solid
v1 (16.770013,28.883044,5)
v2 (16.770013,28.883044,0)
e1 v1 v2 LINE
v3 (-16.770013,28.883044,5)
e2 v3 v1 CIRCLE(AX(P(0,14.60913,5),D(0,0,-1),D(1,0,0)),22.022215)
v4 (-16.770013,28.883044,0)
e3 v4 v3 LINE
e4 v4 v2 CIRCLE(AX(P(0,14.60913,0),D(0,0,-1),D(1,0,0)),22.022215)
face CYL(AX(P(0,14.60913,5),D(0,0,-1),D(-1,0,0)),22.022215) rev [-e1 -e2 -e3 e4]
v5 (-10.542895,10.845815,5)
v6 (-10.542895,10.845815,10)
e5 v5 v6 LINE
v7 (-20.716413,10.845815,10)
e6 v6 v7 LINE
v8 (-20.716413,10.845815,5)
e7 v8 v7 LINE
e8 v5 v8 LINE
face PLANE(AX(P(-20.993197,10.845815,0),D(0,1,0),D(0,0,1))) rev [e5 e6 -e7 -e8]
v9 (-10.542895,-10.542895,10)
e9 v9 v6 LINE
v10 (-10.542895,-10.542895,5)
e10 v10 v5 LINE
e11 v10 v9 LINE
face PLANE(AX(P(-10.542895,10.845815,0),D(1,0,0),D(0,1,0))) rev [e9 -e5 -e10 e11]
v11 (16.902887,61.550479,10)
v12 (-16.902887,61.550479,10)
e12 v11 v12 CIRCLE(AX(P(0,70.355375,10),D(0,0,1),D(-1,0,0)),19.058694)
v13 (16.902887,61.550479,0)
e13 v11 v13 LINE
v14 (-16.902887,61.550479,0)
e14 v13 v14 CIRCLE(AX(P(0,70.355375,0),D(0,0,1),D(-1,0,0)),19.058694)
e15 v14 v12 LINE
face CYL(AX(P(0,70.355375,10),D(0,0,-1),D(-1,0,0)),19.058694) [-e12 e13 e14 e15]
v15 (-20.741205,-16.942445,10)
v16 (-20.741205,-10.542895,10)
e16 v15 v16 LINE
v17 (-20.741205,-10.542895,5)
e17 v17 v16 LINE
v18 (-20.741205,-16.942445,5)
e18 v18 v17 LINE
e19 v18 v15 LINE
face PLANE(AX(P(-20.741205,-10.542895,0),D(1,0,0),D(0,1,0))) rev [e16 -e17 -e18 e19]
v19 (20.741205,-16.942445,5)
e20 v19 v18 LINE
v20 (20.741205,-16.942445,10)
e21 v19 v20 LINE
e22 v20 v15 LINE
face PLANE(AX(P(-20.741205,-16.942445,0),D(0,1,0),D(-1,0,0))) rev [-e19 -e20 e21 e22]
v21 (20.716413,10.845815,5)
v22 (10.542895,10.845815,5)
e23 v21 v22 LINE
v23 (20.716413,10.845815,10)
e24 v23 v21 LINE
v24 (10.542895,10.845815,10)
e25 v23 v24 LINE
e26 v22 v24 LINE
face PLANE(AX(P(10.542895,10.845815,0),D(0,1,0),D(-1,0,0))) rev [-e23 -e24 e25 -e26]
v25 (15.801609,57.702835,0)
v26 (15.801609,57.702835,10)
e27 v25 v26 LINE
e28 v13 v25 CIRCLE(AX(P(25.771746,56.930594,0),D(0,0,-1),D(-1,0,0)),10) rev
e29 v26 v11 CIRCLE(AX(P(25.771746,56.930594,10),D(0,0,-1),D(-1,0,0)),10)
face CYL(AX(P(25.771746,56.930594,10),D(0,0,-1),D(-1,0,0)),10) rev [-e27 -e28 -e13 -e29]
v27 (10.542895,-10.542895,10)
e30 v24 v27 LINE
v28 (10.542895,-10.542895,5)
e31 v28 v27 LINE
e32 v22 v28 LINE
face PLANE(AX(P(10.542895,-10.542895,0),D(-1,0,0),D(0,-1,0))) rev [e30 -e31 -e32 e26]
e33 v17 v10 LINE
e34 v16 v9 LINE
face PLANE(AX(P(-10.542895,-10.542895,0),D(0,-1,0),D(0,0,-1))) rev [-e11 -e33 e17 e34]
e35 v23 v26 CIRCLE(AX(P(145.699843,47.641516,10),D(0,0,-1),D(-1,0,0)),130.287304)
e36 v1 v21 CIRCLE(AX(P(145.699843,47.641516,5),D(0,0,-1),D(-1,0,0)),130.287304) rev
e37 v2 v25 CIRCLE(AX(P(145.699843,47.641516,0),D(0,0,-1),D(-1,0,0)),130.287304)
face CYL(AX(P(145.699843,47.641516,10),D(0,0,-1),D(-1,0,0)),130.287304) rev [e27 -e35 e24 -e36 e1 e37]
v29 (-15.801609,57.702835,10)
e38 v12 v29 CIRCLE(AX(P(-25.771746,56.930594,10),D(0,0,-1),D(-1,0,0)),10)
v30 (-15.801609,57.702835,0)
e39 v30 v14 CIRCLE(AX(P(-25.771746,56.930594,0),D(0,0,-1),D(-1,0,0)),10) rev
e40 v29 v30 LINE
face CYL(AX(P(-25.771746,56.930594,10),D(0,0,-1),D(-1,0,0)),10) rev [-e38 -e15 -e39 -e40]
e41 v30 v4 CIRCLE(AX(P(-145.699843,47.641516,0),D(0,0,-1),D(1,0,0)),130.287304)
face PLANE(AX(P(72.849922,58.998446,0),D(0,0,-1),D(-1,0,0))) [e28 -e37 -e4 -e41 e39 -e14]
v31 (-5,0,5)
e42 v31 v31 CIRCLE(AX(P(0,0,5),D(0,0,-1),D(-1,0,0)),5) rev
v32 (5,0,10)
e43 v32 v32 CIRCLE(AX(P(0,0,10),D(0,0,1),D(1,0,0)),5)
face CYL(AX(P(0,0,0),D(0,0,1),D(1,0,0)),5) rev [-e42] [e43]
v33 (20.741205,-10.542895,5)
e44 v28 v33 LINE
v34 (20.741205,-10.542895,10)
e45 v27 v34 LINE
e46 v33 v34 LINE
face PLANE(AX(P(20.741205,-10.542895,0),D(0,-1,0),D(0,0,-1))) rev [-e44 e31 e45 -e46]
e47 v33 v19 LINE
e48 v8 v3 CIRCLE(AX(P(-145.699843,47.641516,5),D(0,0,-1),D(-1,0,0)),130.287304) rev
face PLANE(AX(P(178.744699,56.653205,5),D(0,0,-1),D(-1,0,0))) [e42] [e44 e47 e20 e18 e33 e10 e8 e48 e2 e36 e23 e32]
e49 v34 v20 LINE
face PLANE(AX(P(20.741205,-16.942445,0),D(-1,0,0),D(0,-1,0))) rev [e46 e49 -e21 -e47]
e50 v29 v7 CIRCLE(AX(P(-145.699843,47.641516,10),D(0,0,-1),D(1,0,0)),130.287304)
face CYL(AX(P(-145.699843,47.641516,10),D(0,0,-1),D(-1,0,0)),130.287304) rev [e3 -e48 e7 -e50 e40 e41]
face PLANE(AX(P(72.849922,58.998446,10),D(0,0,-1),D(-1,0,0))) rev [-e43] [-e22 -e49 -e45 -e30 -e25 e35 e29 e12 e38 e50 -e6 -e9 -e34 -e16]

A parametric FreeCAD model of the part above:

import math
import FreeCAD as App
import Part
import Sketcher
from FreeCAD import Vector
Q = App.Units.Quantity


def edges_at(feature, points):
    """Names of the edges that pass closest to the given points."""
    edges = feature.Shape.Edges
    near = lambda p: min(range(len(edges)), key=lambda i: edges[i].distToShape(Part.Vertex(*p))[0])
    return sorted({f"Edge{near(p) + 1}" for p in points})

doc = App.newDocument("Part")
body = doc.addObject("PartDesign::Body", "Body")

sketch1 = body.newObject("Sketcher::SketchObject", "Sketch")
sketch1.AttachmentSupport = (doc.getObject("XY_Plane"), [""])
sketch1.MapMode = "FlatFace"
sketch1.addGeometry([
    Part.ArcOfCircle(Part.Circle(Vector(-145.699843, 47.641516, 0), Vector(0, 0, 1), 130.287304), math.radians(-47.365241), math.radians(5.44301)),
    Part.ArcOfCircle(Part.Circle(Vector(0, 0, 0), Vector(0, 0, 1), 75), math.radians(-140), math.radians(-40)),
    Part.ArcOfCircle(Part.Circle(Vector(145.699843, 47.641516, 0), Vector(0, 0, 1), 130.287304), math.radians(174.55699), math.radians(227.365241)),
    Part.ArcOfCircle(Part.Circle(Vector(0, 70.355375, 0), Vector(0, 0, 1), 19.058694), math.radians(-32.911387), math.radians(212.911387)),
], False)
sketch1.addConstraint([
    Sketcher.Constraint("Coincident", 0, 1, 1, 1),
    Sketcher.Constraint("Coincident", 1, 2, 2, 2),
    Sketcher.Constraint("Coincident", 2, 1, 3, 1),
    Sketcher.Constraint("Coincident", 3, 2, 0, 2),
    Sketcher.Constraint("Coincident", 1, 3, -1, 1),
    Sketcher.Constraint("Equal", 0, 2),
    Sketcher.Constraint("Symmetric", 0, 3, 2, 3, -2),
    Sketcher.Constraint("PointOnObject", 3, 3, -2),
    Sketcher.Constraint("Radius", 1, Q("75 mm")),
    Sketcher.Constraint("DistanceX", -1, 1, 2, 1, Q("16 mm")),
    Sketcher.Constraint("DistanceY", -1, 1, 2, 1, Q("60 mm")),
    Sketcher.Constraint("Radius", 0, Q("130.287304 mm")),
    Sketcher.Constraint("Radius", 3, Q("19.058694 mm")),
    Sketcher.Constraint("DistanceY", 0, 1, -1, 1, Q("48.209071 mm")),
])
pad1 = body.newObject("PartDesign::Pad", "Pad")
pad1.Profile = sketch1
pad1.Length = 10

sketch2 = body.newObject("Sketcher::SketchObject", "Sketch001")
sketch2.AttachmentSupport = (doc.getObject("XY_Plane"), [""])
sketch2.MapMode = "FlatFace"
sketch2.AttachmentOffset = App.Placement(Vector(0, 0, 10), App.Rotation())
sketch2.addGeometry(Part.Circle(Vector(0, 0, 0), Vector(0, 0, 1), 5), False)
sketch2.addConstraint([
    Sketcher.Constraint("Coincident", 0, 3, -1, 1),
    Sketcher.Constraint("Diameter", 0, Q("10 mm")),
])
pocket1 = body.newObject("PartDesign::Pocket", "Pocket")
pocket1.Profile = sketch2
pocket1.Type = "ThroughAll"

sketch3 = body.newObject("Sketcher::SketchObject", "Sketch002")
sketch3.AttachmentSupport = (doc.getObject("XY_Plane"), [""])
sketch3.MapMode = "FlatFace"
sketch3.AttachmentOffset = App.Placement(Vector(0, 0, 10), App.Rotation())
sketch3.addGeometry([
    Part.LineSegment(Vector(-10.542895, 10.845815, 0), Vector(-20.993197, 10.845815, 0)),
    Part.ArcOfCircle(Part.Circle(Vector(-148.449569, 48.754044, 0), Vector(0, 0, 1), 132.974285), math.radians(-46.818277), math.radians(-16.563595)),
    Part.ArcOfCircle(Part.Circle(Vector(0, 0, 0), Vector(0, 0, 1), 75), math.radians(-140), math.radians(-40)),
    Part.ArcOfCircle(Part.Circle(Vector(209.980061, 86.742605, 0), Vector(0, 0, 1), 203.657451), math.radians(-158.119693), math.radians(-138.498435)),
    Part.LineSegment(Vector(20.993197, 10.845815, 0), Vector(10.542895, 10.845815, 0)),
    Part.LineSegment(Vector(10.542895, 10.845815, 0), Vector(10.542895, -10.542895, 0)),
    Part.LineSegment(Vector(10.542895, -10.542895, 0), Vector(20.741205, -10.542895, 0)),
    Part.LineSegment(Vector(20.741205, -10.542895, 0), Vector(20.741205, -16.942445, 0)),
    Part.LineSegment(Vector(20.741205, -16.942445, 0), Vector(-20.741205, -16.942445, 0)),
    Part.LineSegment(Vector(-20.741205, -16.942445, 0), Vector(-20.741205, -10.542895, 0)),
    Part.LineSegment(Vector(-20.741205, -10.542895, 0), Vector(-10.542895, -10.542895, 0)),
    Part.LineSegment(Vector(-10.542895, -10.542895, 0), Vector(-10.542895, 10.845815, 0)),
], False)
sketch3.addConstraint([
    Sketcher.Constraint("Coincident", 0, 2, 1, 2),
    Sketcher.Constraint("Coincident", 1, 1, 2, 1),
    Sketcher.Constraint("Coincident", 2, 2, 3, 2),
    Sketcher.Constraint("Coincident", 3, 1, 4, 1),
    Sketcher.Constraint("Coincident", 4, 2, 5, 1),
    Sketcher.Constraint("Coincident", 5, 2, 6, 1),
    Sketcher.Constraint("Coincident", 6, 2, 7, 1),
    Sketcher.Constraint("Coincident", 7, 2, 8, 1),
    Sketcher.Constraint("Coincident", 8, 2, 9, 1),
    Sketcher.Constraint("Coincident", 9, 2, 10, 1),
    Sketcher.Constraint("Coincident", 10, 2, 11, 1),
    Sketcher.Constraint("Coincident", 11, 2, 0, 1),
    Sketcher.Constraint("Horizontal", 0),
    Sketcher.Constraint("Horizontal", 4),
    Sketcher.Constraint("Vertical", 5),
    Sketcher.Constraint("Horizontal", 6),
    Sketcher.Constraint("Vertical", 7),
    Sketcher.Constraint("Horizontal", 8),
    Sketcher.Constraint("Vertical", 9),
    Sketcher.Constraint("Horizontal", 10),
    Sketcher.Constraint("Vertical", 11),
    Sketcher.Constraint("Coincident", 2, 3, -1, 1),
    Sketcher.Constraint("Symmetric", 0, 2, 3, 1, -2),
    Sketcher.Constraint("Symmetric", 6, 2, 9, 2, -2),
    Sketcher.Constraint("Horizontal", 1, 1, 2, 2),
    Sketcher.Constraint("Equal", 0, 4),
    Sketcher.Constraint("Radius", 2, Q("75 mm")),
    Sketcher.Constraint("Radius", 3, Q("203.657451 mm")),
    Sketcher.Constraint("Radius", 1, Q("132.974285 mm")),
    Sketcher.Constraint("DistanceX", 6, 1, 6, 2, Q("10.19831 mm")),
    Sketcher.Constraint("DistanceX", 8, 2, 8, 1, Q("41.48241 mm")),
    Sketcher.Constraint("DistanceY", 5, 2, 5, 1, Q("21.38871 mm")),
    Sketcher.Constraint("DistanceY", 7, 2, 7, 1, Q("6.39955 mm")),
    Sketcher.Constraint("DistanceX", 1, 3, 2, 2, Q("205.902902 mm")),
    Sketcher.Constraint("DistanceX", 0, 2, 0, 1, Q("10.450302 mm")),
    Sketcher.Constraint("DistanceX", 1, 3, -1, 1, Q("148.449569 mm")),
])
pocket2 = body.newObject("PartDesign::Pocket", "Pocket001")
pocket2.Profile = sketch3
pocket2.Type = "ThroughAll"

sketch4 = body.newObject("Sketcher::SketchObject", "Sketch003")
sketch4.AttachmentSupport = (doc.getObject("XY_Plane"), [""])
sketch4.MapMode = "FlatFace"
sketch4.addGeometry([
    Part.LineSegment(Vector(-10.542895, 10.845815, 0), Vector(-20.993197, 10.845815, 0)),
    Part.ArcOfCircle(Part.Circle(Vector(-154.894669, 51.15523, 0), Vector(0, 0, 1), 139.837238), math.radians(-16.753784), math.radians(-9.208637)),
    Part.ArcOfCircle(Part.Circle(Vector(0, 14.60913, 0), Vector(0, 0, 1), 22.022215), math.radians(40.041929), math.radians(139.958071)),
    Part.ArcOfCircle(Part.Circle(Vector(178.7447, 56.653205, 0), Vector(0, 0, 1), 164.267628), math.radians(-170.229655), math.radians(-163.807924)),
    Part.LineSegment(Vector(20.993197, 10.845815, 0), Vector(10.542895, 10.845815, 0)),
    Part.LineSegment(Vector(10.542895, 10.845815, 0), Vector(10.542895, -10.542895, 0)),
    Part.LineSegment(Vector(10.542895, -10.542895, 0), Vector(20.741205, -10.542895, 0)),
    Part.LineSegment(Vector(20.741205, -10.542895, 0), Vector(20.741205, -16.942445, 0)),
    Part.LineSegment(Vector(20.741205, -16.942445, 0), Vector(-20.741205, -16.942445, 0)),
    Part.LineSegment(Vector(-20.741205, -16.942445, 0), Vector(-20.741205, -10.542895, 0)),
    Part.LineSegment(Vector(-20.741205, -10.542895, 0), Vector(-10.542895, -10.542895, 0)),
    Part.LineSegment(Vector(-10.542895, -10.542895, 0), Vector(-10.542895, 10.845815, 0)),
], False)
sketch4.addConstraint([
    Sketcher.Constraint("Coincident", 0, 2, 1, 1),
    Sketcher.Constraint("Coincident", 1, 2, 2, 2),
    Sketcher.Constraint("Coincident", 2, 1, 3, 1),
    Sketcher.Constraint("Coincident", 3, 2, 4, 1),
    Sketcher.Constraint("Coincident", 4, 2, 5, 1),
    Sketcher.Constraint("Coincident", 5, 2, 6, 1),
    Sketcher.Constraint("Coincident", 6, 2, 7, 1),
    Sketcher.Constraint("Coincident", 7, 2, 8, 1),
    Sketcher.Constraint("Coincident", 8, 2, 9, 1),
    Sketcher.Constraint("Coincident", 9, 2, 10, 1),
    Sketcher.Constraint("Coincident", 10, 2, 11, 1),
    Sketcher.Constraint("Coincident", 11, 2, 0, 1),
    Sketcher.Constraint("Horizontal", 0),
    Sketcher.Constraint("Horizontal", 4),
    Sketcher.Constraint("Vertical", 5),
    Sketcher.Constraint("Horizontal", 6),
    Sketcher.Constraint("Vertical", 7),
    Sketcher.Constraint("Horizontal", 8),
    Sketcher.Constraint("Vertical", 9),
    Sketcher.Constraint("Horizontal", 10),
    Sketcher.Constraint("Vertical", 11),
    Sketcher.Constraint("Symmetric", 1, 2, 2, 1, -2),
    Sketcher.Constraint("Symmetric", 0, 2, 3, 2, -2),
    Sketcher.Constraint("Symmetric", 6, 2, 9, 2, -2),
    Sketcher.Constraint("Equal", 0, 4),
    Sketcher.Constraint("Radius", 1, Q("139.837238 mm")),
    Sketcher.Constraint("Radius", 3, Q("164.267628 mm")),
    Sketcher.Constraint("Radius", 2, Q("22.022215 mm")),
    Sketcher.Constraint("DistanceX", 6, 1, 6, 2, Q("10.19831 mm")),
    Sketcher.Constraint("DistanceX", 8, 2, 8, 1, Q("41.48241 mm")),
    Sketcher.Constraint("DistanceY", 5, 2, 5, 1, Q("21.38871 mm")),
    Sketcher.Constraint("DistanceY", 7, 2, 7, 1, Q("6.39955 mm")),
    Sketcher.Constraint("DistanceX", -1, 1, 3, 3, Q("178.7447 mm")),
    Sketcher.Constraint("DistanceY", 2, 3, 1, 3, Q("36.5461 mm")),
    Sketcher.Constraint("DistanceX", 0, 2, 0, 1, Q("10.450302 mm")),
    Sketcher.Constraint("DistanceY", -1, 1, 1, 3, Q("51.15523 mm")),
])
pocket3 = body.newObject("PartDesign::Pocket", "Pocket002")
pocket3.Profile = sketch4
pocket3.Length = 5
pocket3.Reversed = True
doc.recompute()

fillet = body.newObject("PartDesign::Fillet", "Fillet")
fillet.Base = (pocket3, edges_at(pocket3, [(16, 60, 5)]))
fillet.Radius = 10
doc.recompute()

fillet2 = body.newObject("PartDesign::Fillet", "Fillet001")
fillet2.Base = (fillet, edges_at(fillet, [(-16, 60, 5)]))
fillet2.Radius = 10

doc.recompute()
